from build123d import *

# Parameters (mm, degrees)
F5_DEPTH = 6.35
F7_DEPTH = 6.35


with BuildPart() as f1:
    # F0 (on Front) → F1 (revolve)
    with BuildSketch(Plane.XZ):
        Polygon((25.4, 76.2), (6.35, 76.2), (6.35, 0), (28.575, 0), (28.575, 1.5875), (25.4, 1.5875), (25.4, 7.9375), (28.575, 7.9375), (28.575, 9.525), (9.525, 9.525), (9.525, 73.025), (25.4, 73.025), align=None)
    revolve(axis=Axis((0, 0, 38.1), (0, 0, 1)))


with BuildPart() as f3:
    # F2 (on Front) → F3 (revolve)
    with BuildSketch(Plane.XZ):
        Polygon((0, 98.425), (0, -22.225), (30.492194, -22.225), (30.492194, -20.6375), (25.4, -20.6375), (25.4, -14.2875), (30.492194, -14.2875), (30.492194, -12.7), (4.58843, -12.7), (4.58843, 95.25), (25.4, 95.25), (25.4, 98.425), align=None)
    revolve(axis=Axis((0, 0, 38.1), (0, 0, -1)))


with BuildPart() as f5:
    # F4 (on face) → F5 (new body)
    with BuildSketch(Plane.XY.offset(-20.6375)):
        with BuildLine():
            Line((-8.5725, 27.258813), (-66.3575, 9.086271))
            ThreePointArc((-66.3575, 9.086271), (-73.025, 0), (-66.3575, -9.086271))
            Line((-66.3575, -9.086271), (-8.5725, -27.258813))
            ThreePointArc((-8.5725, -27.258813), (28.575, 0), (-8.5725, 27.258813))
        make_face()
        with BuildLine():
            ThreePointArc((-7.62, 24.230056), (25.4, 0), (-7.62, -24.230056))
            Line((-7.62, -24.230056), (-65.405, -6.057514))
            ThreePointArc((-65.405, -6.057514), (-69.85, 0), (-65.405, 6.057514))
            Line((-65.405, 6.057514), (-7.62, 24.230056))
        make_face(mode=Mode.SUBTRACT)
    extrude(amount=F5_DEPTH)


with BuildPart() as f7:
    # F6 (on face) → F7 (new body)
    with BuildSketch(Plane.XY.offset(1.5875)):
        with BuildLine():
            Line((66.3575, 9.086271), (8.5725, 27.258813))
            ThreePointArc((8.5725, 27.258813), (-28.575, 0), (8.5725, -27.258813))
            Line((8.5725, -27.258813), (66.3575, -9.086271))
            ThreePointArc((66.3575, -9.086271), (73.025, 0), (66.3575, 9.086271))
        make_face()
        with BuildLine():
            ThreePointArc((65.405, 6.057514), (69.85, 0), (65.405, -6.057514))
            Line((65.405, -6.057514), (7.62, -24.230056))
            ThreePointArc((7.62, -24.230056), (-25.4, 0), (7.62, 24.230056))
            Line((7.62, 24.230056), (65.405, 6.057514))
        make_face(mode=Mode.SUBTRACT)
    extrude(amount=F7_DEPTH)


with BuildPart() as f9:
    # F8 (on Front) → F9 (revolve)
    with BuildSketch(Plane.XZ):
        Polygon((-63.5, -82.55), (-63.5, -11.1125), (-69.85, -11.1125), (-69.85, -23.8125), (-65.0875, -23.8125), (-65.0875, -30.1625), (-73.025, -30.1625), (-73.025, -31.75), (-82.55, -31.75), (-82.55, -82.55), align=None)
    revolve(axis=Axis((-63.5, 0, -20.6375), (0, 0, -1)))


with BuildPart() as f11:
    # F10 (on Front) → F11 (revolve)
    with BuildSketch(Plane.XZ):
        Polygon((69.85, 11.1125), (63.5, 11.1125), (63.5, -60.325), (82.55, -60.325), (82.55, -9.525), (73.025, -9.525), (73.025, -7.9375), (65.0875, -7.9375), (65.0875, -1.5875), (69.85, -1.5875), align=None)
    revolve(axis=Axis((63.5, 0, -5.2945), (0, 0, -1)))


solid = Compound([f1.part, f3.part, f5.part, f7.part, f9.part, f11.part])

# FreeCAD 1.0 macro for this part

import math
import FreeCAD as App
import Part
import Sketcher
from FreeCAD import Vector
Q = App.Units.Quantity


def add_polygon(sketch, points):
    """Adds a closed chain of lines whose ends are joined by coincident constraints."""
    first, n = sketch.GeometryCount, len(points)
    for a, b in zip(points, points[1:] + points[:1]):
        sketch.addGeometry(Part.LineSegment(App.Vector(*a, 0), App.Vector(*b, 0)), False)
    for i in range(n):
        sketch.addConstraint(Sketcher.Constraint("Coincident", first + i, 2, first + (i + 1) % n, 1))

doc = App.newDocument("Part")
body = doc.addObject("PartDesign::Body", "Body")

sketch1 = doc.addObject("Sketcher::SketchObject", "Sketch")
body.addObject(sketch1)
sketch1.AttachmentSupport = (doc.XZ_Plane, [""])
sketch1.MapMode = "FlatFace"
add_polygon(sketch1, [(25.4, 76.2), (6.3, 76.2), (6.3, 0), (28.6, 0), (28.6, 1.6), (25.4, 1.6), (25.4, 7.9), (28.6, 7.9), (28.6, 9.5), (9.5, 9.5), (9.5, 73), (25.4, 73)])
sketch1.addConstraint([
    Sketcher.Constraint("Horizontal", 0),
    Sketcher.Constraint("Vertical", 1),
    Sketcher.Constraint("Horizontal", 2),
    Sketcher.Constraint("Vertical", 3),
    Sketcher.Constraint("Horizontal", 4),
    Sketcher.Constraint("Vertical", 5),
    Sketcher.Constraint("Horizontal", 6),
    Sketcher.Constraint("Vertical", 7),
    Sketcher.Constraint("Horizontal", 8),
    Sketcher.Constraint("Vertical", 9),
    Sketcher.Constraint("Horizontal", 10),
    Sketcher.Constraint("Vertical", 11),
    Sketcher.Constraint("PointOnObject", 1, 2, -1),
    Sketcher.Constraint("Vertical", 3, 2, 6, 2),
    Sketcher.Constraint("Vertical", 5, 2, 10, 2),
    Sketcher.Constraint("Equal", 0, 8),
    Sketcher.Constraint("Equal", 3, 7),
    Sketcher.Constraint("Equal", 6, 11),
    Sketcher.Constraint("DistanceY", 1, 2, 1, 1, Q("3 in")),
    Sketcher.Constraint("DistanceY", 9, 1, 9, 2, Q("2.5 in")),
    Sketcher.Constraint("DistanceX", -1, 1, 4, 2, Q("1 in")),
    Sketcher.Constraint("DistanceX", 0, 2, 0, 1, Q("0.75 in")),
    Sketcher.Constraint("DistanceY", 5, 1, 5, 2, Q("0.25 in")),
    Sketcher.Constraint("DistanceX", 2, 1, 2, 2, Q("0.875 in")),
])
revolution = doc.addObject("PartDesign::Revolution", "Revolution")
body.addObject(revolution)
revolution.Profile = sketch1
revolution.ReferenceAxis = (sketch1, ["V_Axis"])
revolution.Angle = 360
body2 = doc.addObject("PartDesign::Body", "Body001")

sketch2 = doc.addObject("Sketcher::SketchObject", "Sketch001")
body2.addObject(sketch2)
sketch2.AttachmentSupport = (doc.getObject("XZ_Plane001"), [""])
sketch2.MapMode = "FlatFace"
add_polygon(sketch2, [(0, 98.4), (0, -22.2), (30.5, -22.2), (30.5, -20.6), (25.4, -20.6), (25.4, -14.3), (30.5, -14.3), (30.5, -12.7), (4.6, -12.7), (4.6, 95.2), (25.4, 95.2), (25.4, 98.4)])
sketch2.addConstraint([
    Sketcher.Constraint("Vertical", 0),
    Sketcher.Constraint("Horizontal", 1),
    Sketcher.Constraint("Vertical", 2),
    Sketcher.Constraint("Horizontal", 3),
    Sketcher.Constraint("Vertical", 4),
    Sketcher.Constraint("Horizontal", 5),
    Sketcher.Constraint("Vertical", 6),
    Sketcher.Constraint("Horizontal", 7),
    Sketcher.Constraint("Vertical", 8),
    Sketcher.Constraint("Horizontal", 9),
    Sketcher.Constraint("Vertical", 10),
    Sketcher.Constraint("Horizontal", 11),
    Sketcher.Constraint("PointOnObject", 0, 2, -2),
    Sketcher.Constraint("Vertical", 2, 2, 5, 2),
    Sketcher.Constraint("Vertical", 4, 2, 9, 2),
    Sketcher.Constraint("Equal", 2, 6),
    Sketcher.Constraint("DistanceX", 11, 2, 11, 1, Q("1 in")),
    Sketcher.Constraint("DistanceY", 0, 2, 0, 1, Q("4.75 in")),
    Sketcher.Constraint("DistanceY", 4, 1, 4, 2, Q("0.25 in")),
    Sketcher.Constraint("DistanceY", 8, 1, 8, 2, Q("4.25 in")),
    Sketcher.Constraint("DistanceY", 6, 2, -1, 1, Q("0.5 in")),
    Sketcher.Constraint("DistanceY", 2, 1, 2, 2, Q("0.0625 in")),
    Sketcher.Constraint("DistanceX", 9, 1, 9, 2, Q("20.81157 mm")),
    Sketcher.Constraint("DistanceX", 1, 1, 1, 2, Q("30.492194 mm")),
])
revolution2 = doc.addObject("PartDesign::Revolution", "Revolution001")
body2.addObject(revolution2)
revolution2.Profile = sketch2
revolution2.ReferenceAxis = (sketch2, ["V_Axis"])
revolution2.Angle = 360
body3 = doc.addObject("PartDesign::Body", "Body002")

sketch3 = doc.addObject("Sketcher::SketchObject", "Sketch002")
body3.addObject(sketch3)
sketch3.AttachmentSupport = (doc.getObject("XY_Plane002"), [""])
sketch3.MapMode = "FlatFace"
sketch3.AttachmentOffset = App.Placement(Vector(0, 0, -0.8125 * 25.4), App.Rotation())
sketch3.addGeometry([
    Part.LineSegment(Vector(-9, 27, 0), Vector(-66, 9, 0)),
    Part.ArcOfCircle(Part.Circle(Vector(-63, 0, 0), Vector(0, 0, 1), 10), math.radians(107), math.radians(253)),
    Part.LineSegment(Vector(-66, -9, 0), Vector(-9, -27, 0)),
    Part.ArcOfCircle(Part.Circle(Vector(0, 0, 0), Vector(0, 0, 1), 29), math.radians(-107), math.radians(107)),
    Part.LineSegment(Vector(-65, 6, 0), Vector(-8, 24, 0)),
    Part.ArcOfCircle(Part.Circle(Vector(0, 0, 0), Vector(0, 0, 1), 25), math.radians(-107), math.radians(107)),
    Part.LineSegment(Vector(-8, -24, 0), Vector(-65, -6, 0)),
    Part.ArcOfCircle(Part.Circle(Vector(-63, 0, 0), Vector(0, 0, 1), 6), math.radians(107), math.radians(253)),
], False)
sketch3.addConstraint([
    Sketcher.Constraint("Tangent", 0, 2, 1, 1),
    Sketcher.Constraint("Tangent", 1, 2, 2, 1),
    Sketcher.Constraint("Tangent", 2, 2, 3, 1),
    Sketcher.Constraint("Tangent", 3, 2, 0, 1),
    Sketcher.Constraint("Tangent", 4, 2, 5, 2),
    Sketcher.Constraint("Tangent", 5, 1, 6, 1),
    Sketcher.Constraint("Tangent", 6, 2, 7, 2),
    Sketcher.Constraint("Tangent", 7, 1, 4, 1),
    Sketcher.Constraint("Coincident", 3, 3, -1, 1),
    Sketcher.Constraint("Coincident", 5, 3, -1, 1),
    Sketcher.Constraint("Coincident", 7, 3, 1, 3),
    Sketcher.Constraint("PointOnObject", 1, 3, -1),
    Sketcher.Constraint("Parallel", 0, 4),
    Sketcher.Constraint("Radius", 5, Q("1 in")),
    Sketcher.Constraint("Radius", 7, Q("0.25 in")),
    Sketcher.Constraint("Radius", 1, Q("0.375 in")),
    Sketcher.Constraint("DistanceX", 1, 3, -1, 1, Q("2.5 in")),
])
pad1 = doc.addObject("PartDesign::Pad", "Pad")
body3.addObject(pad1)
pad1.Profile = sketch3
pad1.Length = Q("0.25 in")
body4 = doc.addObject("PartDesign::Body", "Body003")

sketch4 = doc.addObject("Sketcher::SketchObject", "Sketch003")
body4.addObject(sketch4)
sketch4.AttachmentSupport = (doc.getObject("XY_Plane003"), [""])
sketch4.MapMode = "FlatFace"
sketch4.AttachmentOffset = App.Placement(Vector(0, 0, 0.0625 * 25.4), App.Rotation())
sketch4.addGeometry([
    Part.LineSegment(Vector(66, 9, 0), Vector(9, 27, 0)),
    Part.ArcOfCircle(Part.Circle(Vector(0, 0, 0), Vector(0, 0, 1), 29), math.radians(73), math.radians(287)),
    Part.LineSegment(Vector(9, -27, 0), Vector(66, -9, 0)),
    Part.ArcOfCircle(Part.Circle(Vector(63, 0, 0), Vector(0, 0, 1), 10), math.radians(-73), math.radians(73)),
    Part.LineSegment(Vector(8, 24, 0), Vector(65, 6, 0)),
    Part.ArcOfCircle(Part.Circle(Vector(63, 0, 0), Vector(0, 0, 1), 6), math.radians(-73), math.radians(73)),
    Part.LineSegment(Vector(65, -6, 0), Vector(8, -24, 0)),
    Part.ArcOfCircle(Part.Circle(Vector(0, 0, 0), Vector(0, 0, 1), 25), math.radians(73), math.radians(287)),
], False)
sketch4.addConstraint([
    Sketcher.Constraint("Tangent", 0, 2, 1, 1),
    Sketcher.Constraint("Tangent", 1, 2, 2, 1),
    Sketcher.Constraint("Tangent", 2, 2, 3, 1),
    Sketcher.Constraint("Tangent", 3, 2, 0, 1),
    Sketcher.Constraint("Tangent", 4, 2, 5, 2),
    Sketcher.Constraint("Tangent", 5, 1, 6, 1),
    Sketcher.Constraint("Tangent", 6, 2, 7, 2),
    Sketcher.Constraint("Tangent", 7, 1, 4, 1),
    Sketcher.Constraint("Coincident", 1, 3, -1, 1),
    Sketcher.Constraint("Coincident", 7, 3, -1, 1),
    Sketcher.Constraint("Coincident", 5, 3, 3, 3),
    Sketcher.Constraint("PointOnObject", 3, 3, -1),
    Sketcher.Constraint("Parallel", 0, 4),
    Sketcher.Constraint("Radius", 7, Q("1 in")),
    Sketcher.Constraint("Radius", 5, Q("0.25 in")),
    Sketcher.Constraint("Radius", 1, Q("1.125 in")),
    Sketcher.Constraint("DistanceX", -1, 1, 3, 3, Q("2.5 in")),
])
pad2 = doc.addObject("PartDesign::Pad", "Pad001")
body4.addObject(pad2)
pad2.Profile = sketch4
pad2.Length = Q("0.25 in")
body5 = doc.addObject("PartDesign::Body", "Body004")

sketch5 = doc.addObject("Sketcher::SketchObject", "Sketch004")
body5.addObject(sketch5)
sketch5.AttachmentSupport = (doc.getObject("XZ_Plane004"), [""])
sketch5.MapMode = "FlatFace"
add_polygon(sketch5, [(-63.5, -82.5), (-63.5, -11.1), (-69.8, -11.1), (-69.8, -23.8), (-65.1, -23.8), (-65.1, -30.2), (-73, -30.2), (-73, -31.8), (-82.5, -31.8), (-82.5, -82.5)])
sketch5.addGeometry(Part.LineSegment(Vector(-63.5, -11.1, 0), Vector(-63.5, -82.5, 0)), True)
sketch5.addConstraint([
    Sketcher.Constraint("Vertical", 0),
    Sketcher.Constraint("Horizontal", 1),
    Sketcher.Constraint("Vertical", 2),
    Sketcher.Constraint("Horizontal", 3),
    Sketcher.Constraint("Vertical", 4),
    Sketcher.Constraint("Horizontal", 5),
    Sketcher.Constraint("Vertical", 6),
    Sketcher.Constraint("Horizontal", 7),
    Sketcher.Constraint("Vertical", 8),
    Sketcher.Constraint("Horizontal", 9),
    Sketcher.Constraint("Vertical", 10),
    Sketcher.Constraint("Coincident", 10, 1, 0, 2),
    Sketcher.Constraint("Horizontal", 8, 2, 10, 2),
    Sketcher.Constraint("Equal", 1, 4),
    Sketcher.Constraint("DistanceY", 8, 2, 8, 1, Q("2 in")),
    Sketcher.Constraint("DistanceY", 2, 2, 2, 1, Q("0.5 in")),
    Sketcher.Constraint("DistanceX", 1, 2, 1, 1, Q("0.25 in")),
    Sketcher.Constraint("DistanceX", 9, 1, 9, 2, Q("0.75 in")),
    Sketcher.Constraint("DistanceX", 0, 2, -1, 1, Q("2.5 in")),
    Sketcher.Constraint("DistanceX", 3, 1, 3, 2, Q("0.1875 in")),
    Sketcher.Constraint("DistanceX", 5, 2, 5, 1, Q("0.3125 in")),
    Sketcher.Constraint("DistanceY", 0, 1, 0, 2, Q("2.8125 in")),
    Sketcher.Constraint("DistanceY", 6, 2, -1, 1, Q("1.25 in")),
])
revolution3 = doc.addObject("PartDesign::Revolution", "Revolution002")
body5.addObject(revolution3)
revolution3.Profile = sketch5
revolution3.ReferenceAxis = (sketch5, ["Axis0"])
revolution3.Angle = 360
body6 = doc.addObject("PartDesign::Body", "Body005")

sketch6 = doc.addObject("Sketcher::SketchObject", "Sketch005")
body6.addObject(sketch6)
sketch6.AttachmentSupport = (doc.getObject("XZ_Plane005"), [""])
sketch6.MapMode = "FlatFace"
add_polygon(sketch6, [(69.8, 11.1), (63.5, 11.1), (63.5, -60.3), (82.5, -60.3), (82.5, -9.5), (73, -9.5), (73, -7.9), (65.1, -7.9), (65.1, -1.6), (69.8, -1.6)])
sketch6.addGeometry(Part.LineSegment(Vector(63.5, 11.1, 0), Vector(63.5, -60.3, 0)), True)
sketch6.addConstraint([
    Sketcher.Constraint("Horizontal", 0),
    Sketcher.Constraint("Vertical", 1),
    Sketcher.Constraint("Horizontal", 2),
    Sketcher.Constraint("Vertical", 3),
    Sketcher.Constraint("Horizontal", 4),
    Sketcher.Constraint("Vertical", 5),
    Sketcher.Constraint("Horizontal", 6),
    Sketcher.Constraint("Vertical", 7),
    Sketcher.Constraint("Horizontal", 8),
    Sketcher.Constraint("Vertical", 9),
    Sketcher.Constraint("Vertical", 10),
    Sketcher.Constraint("Coincident", 10, 1, 0, 2),
    Sketcher.Constraint("Horizontal", 2, 2, 10, 2),
    Sketcher.Constraint("Equal", 0, 7),
    Sketcher.Constraint("DistanceY", 3, 1, 3, 2, Q("2 in")),
    Sketcher.Constraint("DistanceY", 9, 1, 9, 2, Q("0.5 in")),
    Sketcher.Constraint("DistanceX", 0, 2, 0, 1, Q("0.25 in")),
    Sketcher.Constraint("DistanceX", 2, 1, 2, 2, Q("0.75 in")),
    Sketcher.Constraint("DistanceX", -1, 1, 0, 2, Q("2.5 in")),
    Sketcher.Constraint("DistanceX", 4, 2, 4, 1, Q("0.375 in")),
    Sketcher.Constraint("DistanceX", 6, 2, 6, 1, Q("0.3125 in")),
    Sketcher.Constraint("DistanceY", 1, 2, 1, 1, Q("2.8125 in")),
    Sketcher.Constraint("DistanceY", -1, 1, 0, 2, Q("0.4375 in")),
])
revolution4 = doc.addObject("PartDesign::Revolution", "Revolution003")
body6.addObject(revolution4)
revolution4.Profile = sketch6
revolution4.ReferenceAxis = (sketch6, ["Axis0"])
revolution4.Angle = 360

doc.recompute()
